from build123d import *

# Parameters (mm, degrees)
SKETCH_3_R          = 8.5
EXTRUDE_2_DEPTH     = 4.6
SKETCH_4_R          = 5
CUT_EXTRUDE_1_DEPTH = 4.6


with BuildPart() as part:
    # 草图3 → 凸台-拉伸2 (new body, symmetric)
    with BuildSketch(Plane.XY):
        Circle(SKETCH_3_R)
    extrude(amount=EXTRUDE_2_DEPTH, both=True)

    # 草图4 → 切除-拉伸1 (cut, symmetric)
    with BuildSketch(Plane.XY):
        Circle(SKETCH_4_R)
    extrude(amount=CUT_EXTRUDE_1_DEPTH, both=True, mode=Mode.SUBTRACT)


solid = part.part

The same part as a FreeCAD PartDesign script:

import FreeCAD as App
import Part
import Sketcher
Q = App.Units.Quantity

doc = App.newDocument("Part")
body = doc.addObject("PartDesign::Body", "Body")

# Sketch on XY plane
sketch1 = body.newObject("Sketcher::SketchObject", "Sketch")
sketch1.AttachmentSupport = (doc.getObject("XY_Plane"), [""])
sketch1.MapMode = "FlatFace"
sketch1.addGeometry(Part.Circle(App.Vector(0, 0, 0), App.Vector(0, 0, 1), 8), False)
sketch1.addConstraint([
    Sketcher.Constraint("Coincident", 0, 3, -1, 1),
    Sketcher.Constraint("Diameter", 0, Q("17 mm")),
])
pad1 = body.newObject("PartDesign::Pad", "Pad")
pad1.Profile = sketch1
pad1.Length = 9.2
pad1.Midplane = True

# Sketch on XY plane
sketch2 = body.newObject("Sketcher::SketchObject", "Sketch001")
sketch2.AttachmentSupport = (doc.getObject("XY_Plane"), [""])
sketch2.MapMode = "FlatFace"
sketch2.addGeometry(Part.Circle(App.Vector(0, 0, 0), App.Vector(0, 0, 1), 5), False)
sketch2.addConstraint([
    Sketcher.Constraint("Coincident", 0, 3, -1, 1),
    Sketcher.Constraint("Diameter", 0, Q("10 mm")),
])
pocket1 = body.newObject("PartDesign::Pocket", "Pocket")
pocket1.Profile = sketch2
pocket1.Length = 9.2
pocket1.Midplane = True

doc.recompute()
